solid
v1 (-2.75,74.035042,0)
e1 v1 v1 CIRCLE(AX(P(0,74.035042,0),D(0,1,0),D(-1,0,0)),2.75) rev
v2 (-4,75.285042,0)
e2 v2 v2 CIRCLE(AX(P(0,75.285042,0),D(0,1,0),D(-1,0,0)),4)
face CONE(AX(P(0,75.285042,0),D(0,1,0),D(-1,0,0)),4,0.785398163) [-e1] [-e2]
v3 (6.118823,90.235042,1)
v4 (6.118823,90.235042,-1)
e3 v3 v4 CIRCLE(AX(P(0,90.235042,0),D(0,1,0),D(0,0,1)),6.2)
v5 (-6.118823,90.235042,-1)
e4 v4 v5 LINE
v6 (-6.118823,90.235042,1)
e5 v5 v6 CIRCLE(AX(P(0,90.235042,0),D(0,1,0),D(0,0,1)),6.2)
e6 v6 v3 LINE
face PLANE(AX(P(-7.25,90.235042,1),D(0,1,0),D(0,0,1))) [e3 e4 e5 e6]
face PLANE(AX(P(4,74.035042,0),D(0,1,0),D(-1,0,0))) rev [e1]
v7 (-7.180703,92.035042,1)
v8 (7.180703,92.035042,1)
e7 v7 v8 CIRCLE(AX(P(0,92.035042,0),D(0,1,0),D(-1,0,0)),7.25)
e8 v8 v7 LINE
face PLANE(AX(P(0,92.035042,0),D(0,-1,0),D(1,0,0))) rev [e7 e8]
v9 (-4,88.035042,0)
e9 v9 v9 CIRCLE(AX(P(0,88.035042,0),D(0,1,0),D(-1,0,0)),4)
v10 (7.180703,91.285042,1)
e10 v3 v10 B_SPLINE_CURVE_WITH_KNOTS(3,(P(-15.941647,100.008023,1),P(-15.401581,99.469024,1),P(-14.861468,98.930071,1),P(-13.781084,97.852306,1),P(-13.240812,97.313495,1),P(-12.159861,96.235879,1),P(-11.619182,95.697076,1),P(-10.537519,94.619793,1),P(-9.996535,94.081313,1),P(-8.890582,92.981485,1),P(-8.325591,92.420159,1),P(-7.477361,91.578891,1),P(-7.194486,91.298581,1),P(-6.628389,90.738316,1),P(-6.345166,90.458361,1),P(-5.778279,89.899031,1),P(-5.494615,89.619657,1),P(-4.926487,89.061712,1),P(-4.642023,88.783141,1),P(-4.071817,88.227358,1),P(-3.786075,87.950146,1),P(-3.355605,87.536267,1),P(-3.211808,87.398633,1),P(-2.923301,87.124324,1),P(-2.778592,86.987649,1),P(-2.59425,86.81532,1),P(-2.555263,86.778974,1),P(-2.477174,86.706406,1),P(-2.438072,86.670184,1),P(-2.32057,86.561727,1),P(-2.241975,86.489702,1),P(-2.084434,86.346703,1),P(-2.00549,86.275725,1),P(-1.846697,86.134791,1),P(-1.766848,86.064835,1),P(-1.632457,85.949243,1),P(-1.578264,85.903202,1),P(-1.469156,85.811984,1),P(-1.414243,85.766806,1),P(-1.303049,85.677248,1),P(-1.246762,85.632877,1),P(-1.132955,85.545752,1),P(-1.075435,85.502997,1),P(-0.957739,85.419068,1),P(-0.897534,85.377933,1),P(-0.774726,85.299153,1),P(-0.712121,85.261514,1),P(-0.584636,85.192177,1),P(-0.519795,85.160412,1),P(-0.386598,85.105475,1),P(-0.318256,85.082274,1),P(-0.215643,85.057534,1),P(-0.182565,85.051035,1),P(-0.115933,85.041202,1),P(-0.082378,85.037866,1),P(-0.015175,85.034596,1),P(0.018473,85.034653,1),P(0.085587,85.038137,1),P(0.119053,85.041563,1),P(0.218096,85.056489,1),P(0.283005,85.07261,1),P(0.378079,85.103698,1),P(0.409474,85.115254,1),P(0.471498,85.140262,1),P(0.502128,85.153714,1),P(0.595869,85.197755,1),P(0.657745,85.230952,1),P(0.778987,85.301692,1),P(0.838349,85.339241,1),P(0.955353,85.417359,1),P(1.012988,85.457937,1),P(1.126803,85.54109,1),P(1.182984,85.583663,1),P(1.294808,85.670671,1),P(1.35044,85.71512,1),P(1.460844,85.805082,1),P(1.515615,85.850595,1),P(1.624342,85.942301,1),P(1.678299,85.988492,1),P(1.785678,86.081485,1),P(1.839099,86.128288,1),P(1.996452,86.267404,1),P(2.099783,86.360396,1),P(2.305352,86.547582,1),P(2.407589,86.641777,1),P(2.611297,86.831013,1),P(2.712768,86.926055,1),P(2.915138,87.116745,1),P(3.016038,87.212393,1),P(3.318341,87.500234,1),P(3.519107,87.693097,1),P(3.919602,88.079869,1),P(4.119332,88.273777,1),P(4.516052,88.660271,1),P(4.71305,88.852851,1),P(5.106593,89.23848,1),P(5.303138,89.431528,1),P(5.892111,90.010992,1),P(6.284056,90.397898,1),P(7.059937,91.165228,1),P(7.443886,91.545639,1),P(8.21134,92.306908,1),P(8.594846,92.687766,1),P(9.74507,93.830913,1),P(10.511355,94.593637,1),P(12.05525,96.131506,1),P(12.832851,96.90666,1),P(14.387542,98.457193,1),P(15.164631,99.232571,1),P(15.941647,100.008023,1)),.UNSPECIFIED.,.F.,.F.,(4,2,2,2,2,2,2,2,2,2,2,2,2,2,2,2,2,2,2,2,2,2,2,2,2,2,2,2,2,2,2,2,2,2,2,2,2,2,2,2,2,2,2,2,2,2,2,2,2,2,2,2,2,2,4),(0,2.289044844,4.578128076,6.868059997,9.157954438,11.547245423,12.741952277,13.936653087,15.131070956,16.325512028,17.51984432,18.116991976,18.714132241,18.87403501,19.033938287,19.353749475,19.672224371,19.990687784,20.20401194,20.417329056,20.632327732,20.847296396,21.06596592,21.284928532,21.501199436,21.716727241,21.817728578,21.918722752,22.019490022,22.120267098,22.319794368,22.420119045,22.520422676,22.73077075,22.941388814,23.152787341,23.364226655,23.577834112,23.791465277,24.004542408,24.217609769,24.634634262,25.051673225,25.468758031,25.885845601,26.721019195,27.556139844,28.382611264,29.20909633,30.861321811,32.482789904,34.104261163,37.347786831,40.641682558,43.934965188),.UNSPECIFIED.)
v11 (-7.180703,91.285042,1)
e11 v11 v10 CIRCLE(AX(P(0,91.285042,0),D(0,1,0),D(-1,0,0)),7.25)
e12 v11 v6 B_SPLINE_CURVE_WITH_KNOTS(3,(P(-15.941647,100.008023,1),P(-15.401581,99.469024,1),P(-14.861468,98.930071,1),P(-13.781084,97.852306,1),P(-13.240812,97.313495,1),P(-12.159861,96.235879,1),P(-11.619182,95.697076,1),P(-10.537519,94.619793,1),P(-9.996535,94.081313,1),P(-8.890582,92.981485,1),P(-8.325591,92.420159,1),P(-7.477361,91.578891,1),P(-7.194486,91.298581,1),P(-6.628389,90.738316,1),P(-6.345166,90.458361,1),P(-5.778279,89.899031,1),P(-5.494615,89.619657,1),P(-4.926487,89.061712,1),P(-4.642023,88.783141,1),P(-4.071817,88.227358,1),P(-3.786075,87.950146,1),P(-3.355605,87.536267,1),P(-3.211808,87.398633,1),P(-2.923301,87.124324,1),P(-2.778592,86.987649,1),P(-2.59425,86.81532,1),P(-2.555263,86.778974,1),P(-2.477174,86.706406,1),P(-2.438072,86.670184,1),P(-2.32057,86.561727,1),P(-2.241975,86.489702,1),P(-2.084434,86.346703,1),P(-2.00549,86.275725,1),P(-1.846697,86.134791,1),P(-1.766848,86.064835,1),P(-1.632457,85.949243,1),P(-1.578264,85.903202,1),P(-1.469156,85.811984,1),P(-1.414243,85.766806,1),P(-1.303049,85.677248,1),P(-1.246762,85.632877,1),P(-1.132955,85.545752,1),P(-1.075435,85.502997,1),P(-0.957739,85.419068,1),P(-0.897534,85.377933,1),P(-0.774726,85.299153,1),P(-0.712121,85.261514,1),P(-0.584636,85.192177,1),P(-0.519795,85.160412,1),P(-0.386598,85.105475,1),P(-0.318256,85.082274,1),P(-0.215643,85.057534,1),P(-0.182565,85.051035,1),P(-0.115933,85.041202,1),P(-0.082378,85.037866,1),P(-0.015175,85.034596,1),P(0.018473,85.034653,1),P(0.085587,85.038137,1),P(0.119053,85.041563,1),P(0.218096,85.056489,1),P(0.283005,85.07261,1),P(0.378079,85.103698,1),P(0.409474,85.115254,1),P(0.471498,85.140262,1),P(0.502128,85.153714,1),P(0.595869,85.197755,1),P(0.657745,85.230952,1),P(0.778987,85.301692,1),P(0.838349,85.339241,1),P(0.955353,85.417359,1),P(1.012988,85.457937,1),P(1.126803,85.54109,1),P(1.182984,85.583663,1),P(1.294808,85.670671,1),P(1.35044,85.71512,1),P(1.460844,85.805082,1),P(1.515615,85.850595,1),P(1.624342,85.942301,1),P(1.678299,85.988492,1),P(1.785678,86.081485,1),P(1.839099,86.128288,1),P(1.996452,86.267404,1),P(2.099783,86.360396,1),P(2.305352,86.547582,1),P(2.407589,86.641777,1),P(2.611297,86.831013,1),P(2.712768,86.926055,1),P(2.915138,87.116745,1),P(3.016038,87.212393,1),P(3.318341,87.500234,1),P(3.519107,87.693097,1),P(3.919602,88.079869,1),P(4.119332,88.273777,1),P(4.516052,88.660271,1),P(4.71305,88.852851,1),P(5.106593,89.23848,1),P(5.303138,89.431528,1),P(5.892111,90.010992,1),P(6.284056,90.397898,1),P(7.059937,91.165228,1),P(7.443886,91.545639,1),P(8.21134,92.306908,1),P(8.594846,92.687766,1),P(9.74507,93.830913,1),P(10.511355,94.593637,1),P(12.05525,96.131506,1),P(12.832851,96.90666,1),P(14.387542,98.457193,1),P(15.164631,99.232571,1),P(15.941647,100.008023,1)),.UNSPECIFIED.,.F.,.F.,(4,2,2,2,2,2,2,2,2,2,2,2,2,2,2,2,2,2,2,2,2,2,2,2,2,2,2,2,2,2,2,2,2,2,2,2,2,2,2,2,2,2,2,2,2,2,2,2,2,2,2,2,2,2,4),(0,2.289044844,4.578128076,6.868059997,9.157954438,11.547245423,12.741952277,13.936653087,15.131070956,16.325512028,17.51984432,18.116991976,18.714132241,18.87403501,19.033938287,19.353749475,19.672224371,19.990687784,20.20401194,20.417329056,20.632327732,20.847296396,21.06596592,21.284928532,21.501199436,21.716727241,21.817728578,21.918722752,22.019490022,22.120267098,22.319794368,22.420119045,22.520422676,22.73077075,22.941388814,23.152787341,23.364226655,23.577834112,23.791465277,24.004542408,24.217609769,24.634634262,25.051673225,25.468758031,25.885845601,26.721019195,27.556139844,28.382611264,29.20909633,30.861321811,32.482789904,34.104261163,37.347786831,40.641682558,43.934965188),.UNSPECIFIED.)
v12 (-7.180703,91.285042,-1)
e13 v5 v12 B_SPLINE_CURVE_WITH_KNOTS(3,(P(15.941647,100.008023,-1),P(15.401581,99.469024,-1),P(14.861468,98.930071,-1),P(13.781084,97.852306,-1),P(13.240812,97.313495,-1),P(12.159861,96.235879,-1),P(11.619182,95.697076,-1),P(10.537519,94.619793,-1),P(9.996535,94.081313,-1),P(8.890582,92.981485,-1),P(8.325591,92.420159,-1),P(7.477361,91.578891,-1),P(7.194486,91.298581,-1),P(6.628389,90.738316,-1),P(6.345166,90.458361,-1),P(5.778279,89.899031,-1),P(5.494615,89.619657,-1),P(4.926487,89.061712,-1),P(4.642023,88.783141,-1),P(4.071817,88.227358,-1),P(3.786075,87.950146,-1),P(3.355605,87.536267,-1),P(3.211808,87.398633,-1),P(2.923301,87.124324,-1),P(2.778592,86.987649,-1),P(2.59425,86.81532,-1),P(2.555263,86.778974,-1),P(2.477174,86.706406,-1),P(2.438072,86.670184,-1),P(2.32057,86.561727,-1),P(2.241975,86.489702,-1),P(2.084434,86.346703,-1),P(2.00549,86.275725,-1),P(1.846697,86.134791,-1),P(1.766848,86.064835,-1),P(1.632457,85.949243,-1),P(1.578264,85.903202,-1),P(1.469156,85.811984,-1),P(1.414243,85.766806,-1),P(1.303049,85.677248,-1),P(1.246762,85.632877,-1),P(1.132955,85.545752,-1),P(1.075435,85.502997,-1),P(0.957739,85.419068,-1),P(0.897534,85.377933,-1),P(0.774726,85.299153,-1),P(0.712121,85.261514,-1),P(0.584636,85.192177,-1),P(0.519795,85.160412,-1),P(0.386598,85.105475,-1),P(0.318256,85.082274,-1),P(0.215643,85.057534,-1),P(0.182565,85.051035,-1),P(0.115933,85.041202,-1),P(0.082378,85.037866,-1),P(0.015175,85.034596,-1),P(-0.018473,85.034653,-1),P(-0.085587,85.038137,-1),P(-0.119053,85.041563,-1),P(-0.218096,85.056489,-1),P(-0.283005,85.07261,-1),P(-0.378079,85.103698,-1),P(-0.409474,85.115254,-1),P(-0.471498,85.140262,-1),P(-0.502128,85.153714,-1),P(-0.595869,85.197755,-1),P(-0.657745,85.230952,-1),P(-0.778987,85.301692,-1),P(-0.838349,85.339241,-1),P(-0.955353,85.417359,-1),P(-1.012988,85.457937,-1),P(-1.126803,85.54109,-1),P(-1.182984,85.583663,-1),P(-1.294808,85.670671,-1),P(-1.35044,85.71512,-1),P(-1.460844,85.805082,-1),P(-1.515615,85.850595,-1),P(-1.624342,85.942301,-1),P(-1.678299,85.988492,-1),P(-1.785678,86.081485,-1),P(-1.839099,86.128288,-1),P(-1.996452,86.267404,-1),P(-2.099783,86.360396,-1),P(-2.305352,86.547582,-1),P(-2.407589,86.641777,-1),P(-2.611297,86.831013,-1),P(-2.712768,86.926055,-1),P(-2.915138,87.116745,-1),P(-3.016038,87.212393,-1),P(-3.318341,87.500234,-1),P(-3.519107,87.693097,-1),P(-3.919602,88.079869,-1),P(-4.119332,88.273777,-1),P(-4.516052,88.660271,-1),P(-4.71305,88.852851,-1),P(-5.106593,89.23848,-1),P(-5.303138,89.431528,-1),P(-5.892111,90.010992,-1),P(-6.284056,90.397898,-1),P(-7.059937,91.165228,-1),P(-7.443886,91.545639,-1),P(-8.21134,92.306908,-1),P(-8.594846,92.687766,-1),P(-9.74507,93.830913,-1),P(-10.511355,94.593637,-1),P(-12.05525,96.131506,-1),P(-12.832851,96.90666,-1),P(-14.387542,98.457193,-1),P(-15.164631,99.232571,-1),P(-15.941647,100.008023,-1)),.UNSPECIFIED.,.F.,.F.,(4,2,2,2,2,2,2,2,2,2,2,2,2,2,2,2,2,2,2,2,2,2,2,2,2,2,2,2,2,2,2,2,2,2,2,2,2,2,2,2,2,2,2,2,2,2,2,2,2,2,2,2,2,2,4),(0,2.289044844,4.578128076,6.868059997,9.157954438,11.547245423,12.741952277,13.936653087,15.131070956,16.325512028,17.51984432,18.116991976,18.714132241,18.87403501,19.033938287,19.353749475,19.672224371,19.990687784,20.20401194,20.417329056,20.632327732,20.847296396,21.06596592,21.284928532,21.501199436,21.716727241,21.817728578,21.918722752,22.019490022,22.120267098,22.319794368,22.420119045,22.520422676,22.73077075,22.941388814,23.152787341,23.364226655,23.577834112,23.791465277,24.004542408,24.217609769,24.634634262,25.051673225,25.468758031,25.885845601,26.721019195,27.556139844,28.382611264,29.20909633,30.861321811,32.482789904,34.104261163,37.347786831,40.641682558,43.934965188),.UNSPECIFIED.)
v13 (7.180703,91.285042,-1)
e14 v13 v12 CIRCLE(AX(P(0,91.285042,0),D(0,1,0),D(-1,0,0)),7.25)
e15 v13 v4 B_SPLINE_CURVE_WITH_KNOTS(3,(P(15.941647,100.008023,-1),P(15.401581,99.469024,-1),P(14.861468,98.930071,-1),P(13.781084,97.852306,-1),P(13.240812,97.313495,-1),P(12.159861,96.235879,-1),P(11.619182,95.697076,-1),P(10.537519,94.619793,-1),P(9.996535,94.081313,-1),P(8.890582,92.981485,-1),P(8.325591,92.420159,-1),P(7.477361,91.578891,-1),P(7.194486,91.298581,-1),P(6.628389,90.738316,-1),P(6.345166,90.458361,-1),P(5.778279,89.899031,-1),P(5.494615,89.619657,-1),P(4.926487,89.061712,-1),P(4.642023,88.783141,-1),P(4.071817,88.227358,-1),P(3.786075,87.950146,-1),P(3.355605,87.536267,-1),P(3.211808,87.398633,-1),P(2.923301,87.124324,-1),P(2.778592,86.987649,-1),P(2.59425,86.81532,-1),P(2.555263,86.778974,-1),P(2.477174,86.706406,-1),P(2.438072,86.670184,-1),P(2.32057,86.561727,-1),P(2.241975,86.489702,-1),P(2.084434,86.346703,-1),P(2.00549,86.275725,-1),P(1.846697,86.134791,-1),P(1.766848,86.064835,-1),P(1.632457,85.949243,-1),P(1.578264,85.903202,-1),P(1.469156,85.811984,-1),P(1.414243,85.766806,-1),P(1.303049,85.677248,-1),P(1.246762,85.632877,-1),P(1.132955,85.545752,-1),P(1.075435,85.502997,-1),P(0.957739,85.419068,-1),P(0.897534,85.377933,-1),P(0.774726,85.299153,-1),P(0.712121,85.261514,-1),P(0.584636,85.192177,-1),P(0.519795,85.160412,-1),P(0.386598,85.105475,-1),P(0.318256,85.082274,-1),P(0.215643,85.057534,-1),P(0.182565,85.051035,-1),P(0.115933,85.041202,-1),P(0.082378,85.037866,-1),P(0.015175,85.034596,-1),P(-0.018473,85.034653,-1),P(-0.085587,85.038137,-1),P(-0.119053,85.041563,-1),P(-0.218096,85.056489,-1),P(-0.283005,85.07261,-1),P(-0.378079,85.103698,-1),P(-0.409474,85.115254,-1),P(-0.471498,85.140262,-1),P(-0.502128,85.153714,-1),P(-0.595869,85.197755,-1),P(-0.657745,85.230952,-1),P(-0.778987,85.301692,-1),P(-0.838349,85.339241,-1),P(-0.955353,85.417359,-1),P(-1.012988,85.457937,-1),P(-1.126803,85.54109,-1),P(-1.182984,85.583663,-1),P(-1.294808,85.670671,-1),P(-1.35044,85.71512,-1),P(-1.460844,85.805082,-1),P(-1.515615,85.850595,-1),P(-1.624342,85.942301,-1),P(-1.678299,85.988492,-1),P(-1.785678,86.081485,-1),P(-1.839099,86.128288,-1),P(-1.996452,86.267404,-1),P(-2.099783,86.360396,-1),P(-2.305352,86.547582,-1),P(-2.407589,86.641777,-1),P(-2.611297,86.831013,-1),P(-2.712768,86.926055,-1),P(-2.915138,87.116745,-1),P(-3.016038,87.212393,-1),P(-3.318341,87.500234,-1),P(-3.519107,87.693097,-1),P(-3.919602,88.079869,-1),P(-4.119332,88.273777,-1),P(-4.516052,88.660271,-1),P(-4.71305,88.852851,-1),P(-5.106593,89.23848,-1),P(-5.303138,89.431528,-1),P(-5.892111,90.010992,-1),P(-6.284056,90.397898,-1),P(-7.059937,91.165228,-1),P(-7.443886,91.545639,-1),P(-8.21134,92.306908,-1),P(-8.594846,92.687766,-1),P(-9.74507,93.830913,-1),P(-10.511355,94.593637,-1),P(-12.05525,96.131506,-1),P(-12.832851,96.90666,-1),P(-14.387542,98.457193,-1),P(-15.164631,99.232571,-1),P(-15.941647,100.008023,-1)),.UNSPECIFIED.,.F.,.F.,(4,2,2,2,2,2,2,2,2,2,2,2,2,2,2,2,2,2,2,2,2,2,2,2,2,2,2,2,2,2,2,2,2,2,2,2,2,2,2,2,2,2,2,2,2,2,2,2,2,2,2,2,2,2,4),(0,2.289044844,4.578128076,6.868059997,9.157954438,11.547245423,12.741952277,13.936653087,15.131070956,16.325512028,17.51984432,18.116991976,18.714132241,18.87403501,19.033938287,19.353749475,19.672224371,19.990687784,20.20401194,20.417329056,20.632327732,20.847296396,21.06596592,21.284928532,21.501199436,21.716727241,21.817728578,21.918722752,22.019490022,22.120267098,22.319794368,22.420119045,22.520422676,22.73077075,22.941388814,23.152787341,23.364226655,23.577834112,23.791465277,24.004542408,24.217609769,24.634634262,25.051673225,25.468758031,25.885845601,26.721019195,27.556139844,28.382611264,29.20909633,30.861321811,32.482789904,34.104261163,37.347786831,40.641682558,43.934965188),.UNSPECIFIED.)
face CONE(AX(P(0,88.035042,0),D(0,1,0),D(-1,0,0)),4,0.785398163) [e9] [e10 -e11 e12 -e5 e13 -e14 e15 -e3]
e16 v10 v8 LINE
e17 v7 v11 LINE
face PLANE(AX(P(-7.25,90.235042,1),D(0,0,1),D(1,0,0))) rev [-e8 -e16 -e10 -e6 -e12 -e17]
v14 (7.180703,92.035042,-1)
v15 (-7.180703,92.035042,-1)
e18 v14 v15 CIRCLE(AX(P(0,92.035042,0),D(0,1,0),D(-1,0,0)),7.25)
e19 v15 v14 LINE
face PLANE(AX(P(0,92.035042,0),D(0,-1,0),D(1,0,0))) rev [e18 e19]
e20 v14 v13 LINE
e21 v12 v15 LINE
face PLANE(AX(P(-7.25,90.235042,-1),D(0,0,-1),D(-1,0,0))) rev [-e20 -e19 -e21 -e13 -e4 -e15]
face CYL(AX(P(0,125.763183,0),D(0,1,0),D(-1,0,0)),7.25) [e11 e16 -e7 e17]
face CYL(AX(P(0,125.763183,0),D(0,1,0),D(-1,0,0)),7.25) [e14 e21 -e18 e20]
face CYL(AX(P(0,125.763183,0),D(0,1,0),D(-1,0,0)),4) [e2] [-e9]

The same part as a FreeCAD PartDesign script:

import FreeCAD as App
import Part
import Sketcher
from FreeCAD import Vector
Q = App.Units.Quantity


def edges_at(feature, points):
    """Names of the edges that pass closest to the given points."""
    edges = feature.Shape.Edges
    near = lambda p: min(range(len(edges)), key=lambda i: edges[i].distToShape(Part.Vertex(*p))[0])
    return sorted({f"Edge{near(p) + 1}" for p in points})

doc = App.newDocument("Part")
params = doc.addObject("Spreadsheet::Sheet", "Params")
for row, (alias, value) in enumerate([
    ("sketch1_width", "4 mm"),
    ("sketch1_height", "18 mm"),
    ("sketch1_height2", "14 mm"),
    ("sketch1_width2", "7.25 mm"),
    ("revolution_angle", "360 deg"),
    ("sketch2_height", "2 mm"),
    ("sketch2_width", "14.5 mm"),
    ("pocket1_length", "1.8 mm"),
    ("chamfer_size", "1.25 mm"),
], start=1):
    params.set(f"A{row}", alias)
    params.set(f"B{row}", "=" + value)
    params.setAlias(f"B{row}", alias)

body = doc.addObject("PartDesign::Body", "Body")

# Sketch on XY plane
sketch1 = body.newObject("Sketcher::SketchObject", "Sketch")
sketch1.AttachmentSupport = (doc.getObject("XY_Plane"), [""])
sketch1.MapMode = "FlatFace"
sketch1.addGeometry(Part.LineSegment(Vector(0, 92, 0), Vector(0, 74, 0)), False)
sketch1.addGeometry(Part.LineSegment(Vector(0, 74, 0), Vector(4, 74, 0)), False)
sketch1.addGeometry(Part.LineSegment(Vector(4, 74, 0), Vector(4, 88, 0)), False)
sketch1.addGeometry(Part.LineSegment(Vector(4, 88, 0), Vector(7.2, 91.3, 0)), False)
sketch1.addGeometry(Part.LineSegment(Vector(7.2, 91.3, 0), Vector(7.2, 92, 0)), False)
sketch1.addGeometry(Part.LineSegment(Vector(7.2, 92, 0), Vector(0, 92, 0)), False)
sketch1.addConstraint(Sketcher.Constraint("Coincident", 0, 2, 1, 1))
sketch1.addConstraint(Sketcher.Constraint("Coincident", 1, 2, 2, 1))
sketch1.addConstraint(Sketcher.Constraint("Coincident", 2, 2, 3, 1))
sketch1.addConstraint(Sketcher.Constraint("Coincident", 3, 2, 4, 1))
sketch1.addConstraint(Sketcher.Constraint("Coincident", 4, 2, 5, 1))
sketch1.addConstraint(Sketcher.Constraint("Coincident", 5, 2, 0, 1))
sketch1.addConstraint(Sketcher.Constraint("Vertical", 0))
sketch1.addConstraint(Sketcher.Constraint("Horizontal", 1))
sketch1.addConstraint(Sketcher.Constraint("Vertical", 2))
sketch1.addConstraint(Sketcher.Constraint("Vertical", 4))
sketch1.addConstraint(Sketcher.Constraint("Horizontal", 5))
sketch1.addConstraint(Sketcher.Constraint("PointOnObject", 0, 2, -2))
sketch1.addConstraint(Sketcher.Constraint("DistanceX", 1, 1, 1, 2, 4.0))
sketch1.addConstraint(Sketcher.Constraint("DistanceY", 0, 2, 0, 1, 18.0))
sketch1.addConstraint(Sketcher.Constraint("DistanceY", 2, 1, 2, 2, 14.0))
sketch1.addConstraint(Sketcher.Constraint("Angle", 3, Q("45 deg")))
sketch1.addConstraint(Sketcher.Constraint("DistanceX", 5, 2, 5, 1, 7.25))
sketch1.addConstraint(Sketcher.Constraint("DistanceY", -1, 1, 0, 2, 74.035042))
sketch1.setExpression("Constraints[12]", "Params.sketch1_width")
sketch1.setExpression("Constraints[13]", "Params.sketch1_height")
sketch1.setExpression("Constraints[14]", "Params.sketch1_height2")
sketch1.setExpression("Constraints[16]", "Params.sketch1_width2")
revolution = body.newObject("PartDesign::Revolution", "Revolution")
revolution.Profile = sketch1
revolution.ReferenceAxis = (sketch1, ["V_Axis"])
revolution.setExpression("Angle", "Params.revolution_angle")

# Sketch on XZ plane
sketch2 = body.newObject("Sketcher::SketchObject", "Sketch001")
sketch2.AttachmentSupport = (doc.getObject("XZ_Plane"), [""])
sketch2.MapMode = "FlatFace"
sketch2.AttachmentOffset = App.Placement(Vector(0, 0, -92.035042), App.Rotation())
sketch2.addGeometry(Part.LineSegment(Vector(7.2, 1, 0), Vector(7.2, -1, 0)), False)
sketch2.addGeometry(Part.LineSegment(Vector(7.2, -1, 0), Vector(-7.2, -1, 0)), False)
sketch2.addGeometry(Part.LineSegment(Vector(-7.2, -1, 0), Vector(-7.2, 1, 0)), False)
sketch2.addGeometry(Part.LineSegment(Vector(-7.2, 1, 0), Vector(7.2, 1, 0)), False)
sketch2.addConstraint(Sketcher.Constraint("Coincident", 0, 2, 1, 1))
sketch2.addConstraint(Sketcher.Constraint("Coincident", 1, 2, 2, 1))
sketch2.addConstraint(Sketcher.Constraint("Coincident", 2, 2, 3, 1))
sketch2.addConstraint(Sketcher.Constraint("Coincident", 3, 2, 0, 1))
sketch2.addConstraint(Sketcher.Constraint("Vertical", 0))
sketch2.addConstraint(Sketcher.Constraint("Horizontal", 1))
sketch2.addConstraint(Sketcher.Constraint("Vertical", 2))
sketch2.addConstraint(Sketcher.Constraint("Horizontal", 3))
sketch2.addConstraint(Sketcher.Constraint("Symmetric", 0, 2, 2, 2, -1, 1))
sketch2.addConstraint(Sketcher.Constraint("DistanceY", 0, 2, 0, 1, 2.0))
sketch2.addConstraint(Sketcher.Constraint("DistanceX", 1, 2, 1, 1, 14.5))
sketch2.setExpression("Constraints[9]", "Params.sketch2_height")
sketch2.setExpression("Constraints[10]", "Params.sketch2_width")
pocket1 = body.newObject("PartDesign::Pocket", "Pocket")
pocket1.Profile = sketch2
pocket1.setExpression("Length", "Params.pocket1_length")
pocket1.Reversed = True
doc.recompute()

chamfer = body.newObject("PartDesign::Chamfer", "Chamfer")
chamfer.Base = (pocket1, edges_at(pocket1, [(4, 74.035, 0)]))
chamfer.setExpression("Size", "Params.chamfer_size")

doc.recompute()
